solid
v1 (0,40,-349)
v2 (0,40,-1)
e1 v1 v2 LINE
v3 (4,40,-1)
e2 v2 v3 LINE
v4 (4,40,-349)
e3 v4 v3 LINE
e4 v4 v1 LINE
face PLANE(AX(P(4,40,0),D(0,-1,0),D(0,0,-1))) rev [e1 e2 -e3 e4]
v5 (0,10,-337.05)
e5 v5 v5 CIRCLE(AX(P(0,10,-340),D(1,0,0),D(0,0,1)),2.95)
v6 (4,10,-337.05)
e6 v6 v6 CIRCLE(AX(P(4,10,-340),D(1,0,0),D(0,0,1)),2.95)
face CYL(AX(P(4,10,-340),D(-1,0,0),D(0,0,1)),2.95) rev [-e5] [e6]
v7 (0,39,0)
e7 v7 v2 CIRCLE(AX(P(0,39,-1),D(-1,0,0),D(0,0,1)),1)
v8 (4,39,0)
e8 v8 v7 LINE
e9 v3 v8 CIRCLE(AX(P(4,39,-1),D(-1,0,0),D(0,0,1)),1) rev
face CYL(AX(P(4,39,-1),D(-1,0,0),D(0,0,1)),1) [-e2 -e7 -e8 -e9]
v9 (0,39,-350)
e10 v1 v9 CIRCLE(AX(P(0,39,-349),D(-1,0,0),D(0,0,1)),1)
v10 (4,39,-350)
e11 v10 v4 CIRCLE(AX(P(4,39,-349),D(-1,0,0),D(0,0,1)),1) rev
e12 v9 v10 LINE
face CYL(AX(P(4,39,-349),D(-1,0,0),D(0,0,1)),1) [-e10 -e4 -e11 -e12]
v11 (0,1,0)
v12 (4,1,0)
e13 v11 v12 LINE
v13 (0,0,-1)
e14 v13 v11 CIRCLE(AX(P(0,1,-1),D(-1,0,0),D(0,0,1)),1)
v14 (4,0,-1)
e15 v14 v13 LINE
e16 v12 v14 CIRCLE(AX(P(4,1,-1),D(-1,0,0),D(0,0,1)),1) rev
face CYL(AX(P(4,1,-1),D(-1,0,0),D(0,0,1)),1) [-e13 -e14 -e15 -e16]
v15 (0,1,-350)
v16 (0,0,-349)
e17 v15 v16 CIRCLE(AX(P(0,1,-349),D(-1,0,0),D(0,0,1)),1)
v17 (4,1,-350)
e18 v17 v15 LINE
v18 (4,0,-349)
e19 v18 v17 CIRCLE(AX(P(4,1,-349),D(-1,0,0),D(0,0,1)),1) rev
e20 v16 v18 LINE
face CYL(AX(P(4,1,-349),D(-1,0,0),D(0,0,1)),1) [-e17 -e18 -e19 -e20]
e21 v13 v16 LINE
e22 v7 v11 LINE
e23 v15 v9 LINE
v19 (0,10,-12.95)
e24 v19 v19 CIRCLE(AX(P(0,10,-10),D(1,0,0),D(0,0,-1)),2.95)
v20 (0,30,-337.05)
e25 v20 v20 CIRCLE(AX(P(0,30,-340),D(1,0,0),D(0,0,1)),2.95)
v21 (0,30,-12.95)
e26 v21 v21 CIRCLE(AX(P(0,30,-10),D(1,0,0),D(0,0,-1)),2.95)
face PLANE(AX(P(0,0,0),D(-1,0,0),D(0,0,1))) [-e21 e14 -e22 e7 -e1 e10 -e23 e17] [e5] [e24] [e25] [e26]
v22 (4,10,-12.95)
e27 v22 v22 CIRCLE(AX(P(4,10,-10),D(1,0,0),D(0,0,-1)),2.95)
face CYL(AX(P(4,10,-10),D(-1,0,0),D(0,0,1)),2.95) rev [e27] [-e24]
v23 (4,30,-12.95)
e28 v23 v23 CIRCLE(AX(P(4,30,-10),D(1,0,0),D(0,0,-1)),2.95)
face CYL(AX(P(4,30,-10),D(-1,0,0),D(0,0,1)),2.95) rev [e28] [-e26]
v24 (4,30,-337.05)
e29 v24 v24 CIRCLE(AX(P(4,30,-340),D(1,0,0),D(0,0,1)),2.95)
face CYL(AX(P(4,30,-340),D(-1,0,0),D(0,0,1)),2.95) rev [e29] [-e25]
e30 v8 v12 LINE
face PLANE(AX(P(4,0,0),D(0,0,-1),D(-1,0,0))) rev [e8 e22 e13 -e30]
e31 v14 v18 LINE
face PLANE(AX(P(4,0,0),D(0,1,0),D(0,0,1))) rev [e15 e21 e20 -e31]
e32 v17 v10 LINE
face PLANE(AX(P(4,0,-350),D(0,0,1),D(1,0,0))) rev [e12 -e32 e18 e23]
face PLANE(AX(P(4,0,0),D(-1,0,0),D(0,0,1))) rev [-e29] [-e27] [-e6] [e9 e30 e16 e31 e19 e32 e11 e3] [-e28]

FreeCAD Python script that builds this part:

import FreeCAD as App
import Part
import Sketcher
from FreeCAD import Vector
Q = App.Units.Quantity


def edges_at(feature, points):
    """Names of the edges that pass closest to the given points."""
    edges = feature.Shape.Edges
    near = lambda p: min(range(len(edges)), key=lambda i: edges[i].distToShape(Part.Vertex(*p))[0])
    return sorted({f"Edge{near(p) + 1}" for p in points})


def add_polygon(sketch, points):
    """Adds a closed chain of lines whose ends are joined by coincident constraints."""
    first, n = sketch.GeometryCount, len(points)
    for a, b in zip(points, points[1:] + points[:1]):
        sketch.addGeometry(Part.LineSegment(App.Vector(*a, 0), App.Vector(*b, 0)), False)
    for i in range(n):
        sketch.addConstraint(Sketcher.Constraint("Coincident", first + i, 2, first + (i + 1) % n, 1))

doc = App.newDocument("Part")
body = doc.addObject("PartDesign::Body", "Body")

# Sketch on YZ plane
sketch1 = body.newObject("Sketcher::SketchObject", "Sketch")
sketch1.AttachmentSupport = (doc.getObject("YZ_Plane"), [""])
sketch1.MapMode = "FlatFace"
add_polygon(sketch1, [(40, 0), (0, 0), (0, -350), (40, -350)])  # lines 0-3
sketch1.addGeometry(Part.Circle(Vector(10, -10, 0), Vector(0, 0, 1), 3), False)  # 4
sketch1.addGeometry(Part.Circle(Vector(10, -340, 0), Vector(0, 0, 1), 3), False)  # 5
sketch1.addGeometry(Part.Circle(Vector(30, -10, 0), Vector(0, 0, 1), 3), False)  # 6
sketch1.addGeometry(Part.Circle(Vector(30, -340, 0), Vector(0, 0, 1), 3), False)  # 7
sketch1.addConstraint(Sketcher.Constraint("Horizontal", 0))
sketch1.addConstraint(Sketcher.Constraint("Vertical", 1))
sketch1.addConstraint(Sketcher.Constraint("Horizontal", 2))
sketch1.addConstraint(Sketcher.Constraint("Vertical", 3))
sketch1.addConstraint(Sketcher.Constraint("Coincident", 0, 2, -1, 1))
sketch1.addConstraint(Sketcher.Constraint("Equal", 4, 5))
sketch1.addConstraint(Sketcher.Constraint("Equal", 5, 6))
sketch1.addConstraint(Sketcher.Constraint("Equal", 6, 7))
sketch1.addConstraint(Sketcher.Constraint("Horizontal", 4, 3, 6, 3))
sketch1.addConstraint(Sketcher.Constraint("Horizontal", 5, 3, 7, 3))
sketch1.addConstraint(Sketcher.Constraint("Vertical", 4, 3, 5, 3))
sketch1.addConstraint(Sketcher.Constraint("Vertical", 6, 3, 7, 3))
sketch1.addConstraint(Sketcher.Constraint("Diameter", 4, Q("5.9 mm")))
sketch1.addConstraint(Sketcher.Constraint("DistanceX", 0, 2, 0, 1, Q("40 mm")))
sketch1.addConstraint(Sketcher.Constraint("DistanceY", 1, 2, 1, 1, Q("350 mm")))
sketch1.addConstraint(Sketcher.Constraint("DistanceX", -1, 1, 4, 3, Q("10 mm")))
sketch1.addConstraint(Sketcher.Constraint("DistanceY", 4, 3, -1, 1, Q("10 mm")))
sketch1.addConstraint(Sketcher.Constraint("DistanceY", 5, 3, -1, 1, Q("340 mm")))
sketch1.addConstraint(Sketcher.Constraint("DistanceX", -1, 1, 6, 3, Q("30 mm")))
pad1 = body.newObject("PartDesign::Pad", "Pad")
pad1.Profile = sketch1
pad1.Length = 4
doc.recompute()

fillet = body.newObject("PartDesign::Fillet", "Fillet")
fillet.Base = (pad1, edges_at(pad1, [
    (2, 40, 0),
    (2, 40, -350),
    (2, 0, -350),
    (2, 0, 0),
]))
fillet.Radius = 1

doc.recompute()
